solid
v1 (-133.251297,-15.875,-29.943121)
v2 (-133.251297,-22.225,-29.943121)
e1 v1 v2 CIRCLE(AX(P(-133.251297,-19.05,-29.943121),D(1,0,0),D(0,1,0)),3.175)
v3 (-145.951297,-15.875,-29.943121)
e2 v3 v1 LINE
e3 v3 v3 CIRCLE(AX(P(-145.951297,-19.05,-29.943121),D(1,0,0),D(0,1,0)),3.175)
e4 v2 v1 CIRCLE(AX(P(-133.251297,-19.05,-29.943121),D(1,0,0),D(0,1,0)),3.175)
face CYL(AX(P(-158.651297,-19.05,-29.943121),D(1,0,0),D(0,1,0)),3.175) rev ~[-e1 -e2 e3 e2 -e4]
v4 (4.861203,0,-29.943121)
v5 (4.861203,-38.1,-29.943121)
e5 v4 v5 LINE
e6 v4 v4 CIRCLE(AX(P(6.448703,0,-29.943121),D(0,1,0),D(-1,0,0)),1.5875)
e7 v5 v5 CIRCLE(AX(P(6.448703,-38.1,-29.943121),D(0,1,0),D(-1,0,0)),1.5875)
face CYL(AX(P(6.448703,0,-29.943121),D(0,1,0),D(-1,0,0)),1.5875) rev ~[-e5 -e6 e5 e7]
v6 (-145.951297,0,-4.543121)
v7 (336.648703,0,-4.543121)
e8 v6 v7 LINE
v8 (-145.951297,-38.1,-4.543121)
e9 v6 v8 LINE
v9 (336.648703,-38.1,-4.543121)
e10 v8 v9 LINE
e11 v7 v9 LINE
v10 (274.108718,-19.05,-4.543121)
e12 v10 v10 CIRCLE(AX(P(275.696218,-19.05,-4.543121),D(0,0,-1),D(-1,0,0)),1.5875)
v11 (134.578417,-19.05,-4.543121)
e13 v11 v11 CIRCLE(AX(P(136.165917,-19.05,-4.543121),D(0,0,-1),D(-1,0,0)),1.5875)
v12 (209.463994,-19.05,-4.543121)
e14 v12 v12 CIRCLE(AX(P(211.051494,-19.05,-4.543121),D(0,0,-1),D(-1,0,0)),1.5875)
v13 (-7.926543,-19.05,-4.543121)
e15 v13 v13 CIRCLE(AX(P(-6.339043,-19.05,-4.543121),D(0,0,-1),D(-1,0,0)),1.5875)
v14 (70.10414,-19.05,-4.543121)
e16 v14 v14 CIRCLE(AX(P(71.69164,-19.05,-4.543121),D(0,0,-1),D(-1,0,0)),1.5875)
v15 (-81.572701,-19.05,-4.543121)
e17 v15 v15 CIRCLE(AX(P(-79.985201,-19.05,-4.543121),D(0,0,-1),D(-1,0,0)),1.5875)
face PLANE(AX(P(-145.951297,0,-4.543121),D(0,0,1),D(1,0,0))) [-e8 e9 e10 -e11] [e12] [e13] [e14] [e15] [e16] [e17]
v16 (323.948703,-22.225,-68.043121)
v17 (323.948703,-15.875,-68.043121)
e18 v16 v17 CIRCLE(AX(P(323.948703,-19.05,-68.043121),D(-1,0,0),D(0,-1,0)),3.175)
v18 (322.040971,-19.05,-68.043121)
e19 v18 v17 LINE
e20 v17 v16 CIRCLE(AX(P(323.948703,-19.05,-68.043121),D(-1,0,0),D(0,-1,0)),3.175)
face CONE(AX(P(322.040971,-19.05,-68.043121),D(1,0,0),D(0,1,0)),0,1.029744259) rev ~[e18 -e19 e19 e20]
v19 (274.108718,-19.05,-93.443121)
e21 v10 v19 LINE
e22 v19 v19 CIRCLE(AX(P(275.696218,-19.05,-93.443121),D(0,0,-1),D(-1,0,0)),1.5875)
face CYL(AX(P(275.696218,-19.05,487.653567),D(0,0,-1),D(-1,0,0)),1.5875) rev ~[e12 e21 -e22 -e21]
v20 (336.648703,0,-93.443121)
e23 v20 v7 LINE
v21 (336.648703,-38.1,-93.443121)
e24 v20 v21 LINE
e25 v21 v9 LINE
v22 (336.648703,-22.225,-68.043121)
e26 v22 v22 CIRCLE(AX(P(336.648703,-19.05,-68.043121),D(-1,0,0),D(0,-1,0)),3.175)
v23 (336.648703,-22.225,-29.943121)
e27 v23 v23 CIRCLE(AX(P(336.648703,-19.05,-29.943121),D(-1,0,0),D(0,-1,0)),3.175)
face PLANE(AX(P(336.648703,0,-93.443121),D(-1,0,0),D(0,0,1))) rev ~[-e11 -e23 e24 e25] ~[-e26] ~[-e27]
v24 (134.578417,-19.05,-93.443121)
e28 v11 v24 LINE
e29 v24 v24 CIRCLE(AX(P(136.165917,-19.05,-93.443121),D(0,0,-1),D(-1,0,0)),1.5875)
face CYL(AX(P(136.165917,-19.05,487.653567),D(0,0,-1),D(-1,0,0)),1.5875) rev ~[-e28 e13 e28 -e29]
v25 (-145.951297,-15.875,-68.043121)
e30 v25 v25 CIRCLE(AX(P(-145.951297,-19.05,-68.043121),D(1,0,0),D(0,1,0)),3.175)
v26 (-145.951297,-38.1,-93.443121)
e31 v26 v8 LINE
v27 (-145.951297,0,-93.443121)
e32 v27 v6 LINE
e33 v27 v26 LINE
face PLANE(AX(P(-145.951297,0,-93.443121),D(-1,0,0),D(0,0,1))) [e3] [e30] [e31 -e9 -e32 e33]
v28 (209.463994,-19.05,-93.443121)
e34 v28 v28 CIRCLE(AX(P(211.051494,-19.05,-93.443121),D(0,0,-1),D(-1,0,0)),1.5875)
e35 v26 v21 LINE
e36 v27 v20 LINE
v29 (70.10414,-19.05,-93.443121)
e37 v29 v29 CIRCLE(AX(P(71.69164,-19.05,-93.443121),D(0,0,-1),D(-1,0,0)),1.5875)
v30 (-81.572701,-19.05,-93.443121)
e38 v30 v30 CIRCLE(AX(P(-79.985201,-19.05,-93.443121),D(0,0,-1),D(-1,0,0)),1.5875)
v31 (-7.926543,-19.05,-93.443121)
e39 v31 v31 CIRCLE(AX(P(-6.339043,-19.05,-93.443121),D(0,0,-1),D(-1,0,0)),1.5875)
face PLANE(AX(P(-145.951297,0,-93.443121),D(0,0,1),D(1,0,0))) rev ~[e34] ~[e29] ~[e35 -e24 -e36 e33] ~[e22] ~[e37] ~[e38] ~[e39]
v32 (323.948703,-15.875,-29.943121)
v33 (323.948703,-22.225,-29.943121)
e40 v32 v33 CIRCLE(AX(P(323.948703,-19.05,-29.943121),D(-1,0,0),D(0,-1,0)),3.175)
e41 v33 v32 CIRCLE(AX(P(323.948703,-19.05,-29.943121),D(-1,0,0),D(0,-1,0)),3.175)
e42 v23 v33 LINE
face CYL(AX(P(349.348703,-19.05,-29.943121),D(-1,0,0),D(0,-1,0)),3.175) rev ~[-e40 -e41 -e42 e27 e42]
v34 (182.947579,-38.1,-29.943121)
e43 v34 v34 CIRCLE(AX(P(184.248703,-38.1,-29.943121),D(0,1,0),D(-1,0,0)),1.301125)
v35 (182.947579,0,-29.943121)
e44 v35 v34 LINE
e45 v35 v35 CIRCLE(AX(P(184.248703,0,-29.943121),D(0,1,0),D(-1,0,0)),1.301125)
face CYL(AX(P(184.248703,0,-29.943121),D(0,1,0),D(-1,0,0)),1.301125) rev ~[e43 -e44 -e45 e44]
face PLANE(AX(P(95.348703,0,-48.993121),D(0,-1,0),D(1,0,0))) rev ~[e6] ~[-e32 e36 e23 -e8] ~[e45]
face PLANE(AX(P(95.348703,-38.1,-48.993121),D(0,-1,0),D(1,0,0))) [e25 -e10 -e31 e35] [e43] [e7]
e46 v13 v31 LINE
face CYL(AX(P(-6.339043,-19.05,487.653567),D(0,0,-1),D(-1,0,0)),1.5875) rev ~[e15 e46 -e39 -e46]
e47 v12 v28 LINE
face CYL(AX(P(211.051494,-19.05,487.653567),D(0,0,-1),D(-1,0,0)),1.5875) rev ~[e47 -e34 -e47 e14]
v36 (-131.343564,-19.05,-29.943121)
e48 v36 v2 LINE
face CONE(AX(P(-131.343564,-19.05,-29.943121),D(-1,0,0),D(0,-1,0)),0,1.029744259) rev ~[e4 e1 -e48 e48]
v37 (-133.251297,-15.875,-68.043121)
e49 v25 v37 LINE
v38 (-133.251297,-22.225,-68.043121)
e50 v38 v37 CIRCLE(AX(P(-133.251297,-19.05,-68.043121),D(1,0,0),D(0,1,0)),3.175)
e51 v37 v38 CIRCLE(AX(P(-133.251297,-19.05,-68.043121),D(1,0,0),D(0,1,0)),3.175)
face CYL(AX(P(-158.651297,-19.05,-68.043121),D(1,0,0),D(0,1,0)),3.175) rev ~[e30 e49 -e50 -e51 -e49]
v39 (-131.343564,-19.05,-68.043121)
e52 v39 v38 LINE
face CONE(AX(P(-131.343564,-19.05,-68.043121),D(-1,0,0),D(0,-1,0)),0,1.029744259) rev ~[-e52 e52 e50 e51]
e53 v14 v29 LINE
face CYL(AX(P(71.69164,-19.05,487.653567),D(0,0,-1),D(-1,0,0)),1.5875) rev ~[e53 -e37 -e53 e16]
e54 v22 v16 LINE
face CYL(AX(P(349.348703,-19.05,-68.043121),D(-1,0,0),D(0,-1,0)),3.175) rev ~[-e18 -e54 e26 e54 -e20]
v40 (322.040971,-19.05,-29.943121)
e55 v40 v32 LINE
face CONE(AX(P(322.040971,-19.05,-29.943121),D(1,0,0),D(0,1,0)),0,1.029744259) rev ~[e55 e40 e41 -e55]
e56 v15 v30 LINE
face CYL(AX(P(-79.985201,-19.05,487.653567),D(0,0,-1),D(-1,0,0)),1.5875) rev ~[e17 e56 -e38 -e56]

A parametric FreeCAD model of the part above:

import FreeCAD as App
import Part
import Sketcher
Q = App.Units.Quantity

doc = App.newDocument("Part")
body = doc.addObject("PartDesign::Body", "Body")

sketch1 = body.newObject("Sketcher::SketchObject", "Sketch")
sketch1.AttachmentSupport = (doc.getObject("XZ_Plane"), [""])
sketch1.MapMode = "FlatFace"
sketch1.addGeometry([
    Part.LineSegment(App.Vector(-146, -5, 0), App.Vector(-146, -93, 0)),
    Part.LineSegment(App.Vector(-146, -93, 0), App.Vector(337, -93, 0)),
    Part.LineSegment(App.Vector(337, -93, 0), App.Vector(337, -5, 0)),
    Part.LineSegment(App.Vector(337, -5, 0), App.Vector(-146, -5, 0)),
], False)
sketch1.addConstraint([
    Sketcher.Constraint("Coincident", 0, 2, 1, 1),
    Sketcher.Constraint("Coincident", 1, 2, 2, 1),
    Sketcher.Constraint("Coincident", 2, 2, 3, 1),
    Sketcher.Constraint("Coincident", 3, 2, 0, 1),
    Sketcher.Constraint("Vertical", 0),
    Sketcher.Constraint("Horizontal", 1),
    Sketcher.Constraint("Vertical", 2),
    Sketcher.Constraint("Horizontal", 3),
    Sketcher.Constraint("DistanceX", 1, 1, 1, 2, Q("19 in")),
    Sketcher.Constraint("DistanceY", 0, 2, 0, 1, Q("3.5 in")),
    Sketcher.Constraint("DistanceY", 0, 2, -1, 1, Q("93.443121 mm")),
    Sketcher.Constraint("DistanceX", 0, 2, -1, 1, Q("145.951297 mm")),
])
pad1 = body.newObject("PartDesign::Pad", "Pad")
pad1.Profile = sketch1
pad1.Length = Q("1.5 in")

sketch2 = body.newObject("Sketcher::SketchObject", "Sketch001")
sketch2.AttachmentSupport = (doc.getObject("YZ_Plane"), [""])
sketch2.MapMode = "FlatFace"
sketch2.AttachmentOffset = App.Placement(App.Vector(0, 0, 336.648703), App.Rotation())
sketch2.addGeometry([
    Part.Circle(App.Vector(-19.1, -29.9, 0), App.Vector(0, 0, 1), 3.2),
    Part.Circle(App.Vector(-19.1, -68, 0), App.Vector(0, 0, 1), 3.2),
], False)
sketch2.addConstraint([
    Sketcher.Constraint("Equal", 0, 1),
    Sketcher.Constraint("Vertical", 0, 3, 1, 3),
    Sketcher.Constraint("Diameter", 0, Q("0.25 in")),
    Sketcher.Constraint("DistanceY", 1, 3, 0, 3, Q("1.5 in")),
    Sketcher.Constraint("DistanceX", 0, 3, -1, 1, Q("0.75 in")),
    Sketcher.Constraint("DistanceY", 0, 3, -1, 1, Q("29.943121 mm")),
])
doc.recompute()
hole = body.newObject("PartDesign::Hole", "Hole")
hole.Profile = sketch2
hole.ThreadType = "None"
hole.Diameter = Q("0.25 in")
hole.DepthType = "Dimension"
hole.Depth = Q("0.5 in")
hole.DrillPoint = "Angled"
hole.DrillPointAngle = 118

sketch3 = body.newObject("Sketcher::SketchObject", "Sketch002")
sketch3.AttachmentSupport = (doc.getObject("YZ_Plane"), [""])
sketch3.MapMode = "FlatFace"
sketch3.AttachmentOffset = App.Placement(App.Vector(0, 0, -145.951297), App.Rotation())
sketch3.addGeometry([
    Part.Circle(App.Vector(-19.1, -29.9, 0), App.Vector(0, 0, 1), 3.2),
    Part.Circle(App.Vector(-19.1, -68, 0), App.Vector(0, 0, 1), 3.2),
], False)
sketch3.addConstraint([
    Sketcher.Constraint("Equal", 0, 1),
    Sketcher.Constraint("Vertical", 0, 3, 1, 3),
    Sketcher.Constraint("Diameter", 0, Q("0.25 in")),
    Sketcher.Constraint("DistanceY", 1, 3, 0, 3, Q("1.5 in")),
    Sketcher.Constraint("DistanceX", 0, 3, -1, 1, Q("0.75 in")),
    Sketcher.Constraint("DistanceY", 0, 3, -1, 1, Q("29.943121 mm")),
])
doc.recompute()
hole2 = body.newObject("PartDesign::Hole", "Hole001")
hole2.Profile = sketch3
hole2.ThreadType = "None"
hole2.Diameter = Q("0.25 in")
hole2.DepthType = "Dimension"
hole2.Depth = Q("0.5 in")
hole2.DrillPoint = "Angled"
hole2.DrillPointAngle = 118
hole2.Reversed = True

sketch4 = body.newObject("Sketcher::SketchObject", "Sketch003")
sketch4.AttachmentSupport = (doc.getObject("XZ_Plane"), [""])
sketch4.MapMode = "FlatFace"
sketch4.addGeometry([
    Part.Circle(App.Vector(184.2, -29.9, 0), App.Vector(0, 0, 1), 1.3),
    Part.Circle(App.Vector(6.4, -29.9, 0), App.Vector(0, 0, 1), 1.6),
], False)
sketch4.addConstraint([
    Sketcher.Constraint("Horizontal", 0, 3, 1, 3),
    Sketcher.Constraint("Diameter", 1, Q("0.125 in")),
    Sketcher.Constraint("DistanceX", 1, 3, 0, 3, Q("7 in")),
    Sketcher.Constraint("Diameter", 0, Q("2.602249 mm")),
    Sketcher.Constraint("DistanceY", 0, 3, -1, 1, Q("29.943121 mm")),
    Sketcher.Constraint("DistanceX", -1, 1, 0, 3, Q("184.248703 mm")),
])
pocket1 = body.newObject("PartDesign::Pocket", "Pocket")
pocket1.Profile = sketch4
pocket1.Type = "ThroughAll"
pocket1.Reversed = True

sketch5 = body.newObject("Sketcher::SketchObject", "Sketch004")
sketch5.AttachmentSupport = (doc.getObject("XY_Plane"), [""])
sketch5.MapMode = "FlatFace"
sketch5.AttachmentOffset = App.Placement(App.Vector(0, 0, -4.543121), App.Rotation())
sketch5.addGeometry([
    Part.Circle(App.Vector(275.7, -19.1, 0), App.Vector(0, 0, 1), 1.6),
    Part.Circle(App.Vector(211.1, -19.1, 0), App.Vector(0, 0, 1), 1.6),
    Part.Circle(App.Vector(136.2, -19.1, 0), App.Vector(0, 0, 1), 1.6),
    Part.Circle(App.Vector(71.7, -19.1, 0), App.Vector(0, 0, 1), 1.6),
    Part.Circle(App.Vector(-6.3, -19.1, 0), App.Vector(0, 0, 1), 1.6),
    Part.Circle(App.Vector(-80, -19.1, 0), App.Vector(0, 0, 1), 1.6),
], False)
sketch5.addConstraint([
    Sketcher.Constraint("Equal", 0, 1),
    Sketcher.Constraint("Equal", 1, 2),
    Sketcher.Constraint("Equal", 2, 3),
    Sketcher.Constraint("Equal", 3, 4),
    Sketcher.Constraint("Equal", 4, 5),
    Sketcher.Constraint("Horizontal", 0, 3, 1, 3),
    Sketcher.Constraint("Horizontal", 1, 3, 2, 3),
    Sketcher.Constraint("Horizontal", 2, 3, 3, 3),
    Sketcher.Constraint("Horizontal", 3, 3, 4, 3),
    Sketcher.Constraint("Horizontal", 4, 3, 5, 3),
    Sketcher.Constraint("Diameter", 0, Q("0.125 in")),
    Sketcher.Constraint("DistanceY", 0, 3, -1, 1, Q("0.75 in")),
    Sketcher.Constraint("DistanceX", 5, 3, -1, 1, Q("79.985201 mm")),
    Sketcher.Constraint("DistanceX", 2, 3, 0, 3, Q("139.530301 mm")),
    Sketcher.Constraint("DistanceX", -1, 1, 0, 3, Q("275.696218 mm")),
    Sketcher.Constraint("DistanceX", -1, 1, 3, 3, Q("71.69164 mm")),
    Sketcher.Constraint("DistanceX", 4, 3, 2, 3, Q("142.50496 mm")),
    Sketcher.Constraint("DistanceX", -1, 1, 1, 3, Q("211.051494 mm")),
])
doc.recompute()
hole3 = body.newObject("PartDesign::Hole", "Hole002")
hole3.Profile = sketch5
hole3.ThreadType = "None"
hole3.Diameter = Q("0.125 in")
hole3.DepthType = "ThroughAll"

doc.recompute()
